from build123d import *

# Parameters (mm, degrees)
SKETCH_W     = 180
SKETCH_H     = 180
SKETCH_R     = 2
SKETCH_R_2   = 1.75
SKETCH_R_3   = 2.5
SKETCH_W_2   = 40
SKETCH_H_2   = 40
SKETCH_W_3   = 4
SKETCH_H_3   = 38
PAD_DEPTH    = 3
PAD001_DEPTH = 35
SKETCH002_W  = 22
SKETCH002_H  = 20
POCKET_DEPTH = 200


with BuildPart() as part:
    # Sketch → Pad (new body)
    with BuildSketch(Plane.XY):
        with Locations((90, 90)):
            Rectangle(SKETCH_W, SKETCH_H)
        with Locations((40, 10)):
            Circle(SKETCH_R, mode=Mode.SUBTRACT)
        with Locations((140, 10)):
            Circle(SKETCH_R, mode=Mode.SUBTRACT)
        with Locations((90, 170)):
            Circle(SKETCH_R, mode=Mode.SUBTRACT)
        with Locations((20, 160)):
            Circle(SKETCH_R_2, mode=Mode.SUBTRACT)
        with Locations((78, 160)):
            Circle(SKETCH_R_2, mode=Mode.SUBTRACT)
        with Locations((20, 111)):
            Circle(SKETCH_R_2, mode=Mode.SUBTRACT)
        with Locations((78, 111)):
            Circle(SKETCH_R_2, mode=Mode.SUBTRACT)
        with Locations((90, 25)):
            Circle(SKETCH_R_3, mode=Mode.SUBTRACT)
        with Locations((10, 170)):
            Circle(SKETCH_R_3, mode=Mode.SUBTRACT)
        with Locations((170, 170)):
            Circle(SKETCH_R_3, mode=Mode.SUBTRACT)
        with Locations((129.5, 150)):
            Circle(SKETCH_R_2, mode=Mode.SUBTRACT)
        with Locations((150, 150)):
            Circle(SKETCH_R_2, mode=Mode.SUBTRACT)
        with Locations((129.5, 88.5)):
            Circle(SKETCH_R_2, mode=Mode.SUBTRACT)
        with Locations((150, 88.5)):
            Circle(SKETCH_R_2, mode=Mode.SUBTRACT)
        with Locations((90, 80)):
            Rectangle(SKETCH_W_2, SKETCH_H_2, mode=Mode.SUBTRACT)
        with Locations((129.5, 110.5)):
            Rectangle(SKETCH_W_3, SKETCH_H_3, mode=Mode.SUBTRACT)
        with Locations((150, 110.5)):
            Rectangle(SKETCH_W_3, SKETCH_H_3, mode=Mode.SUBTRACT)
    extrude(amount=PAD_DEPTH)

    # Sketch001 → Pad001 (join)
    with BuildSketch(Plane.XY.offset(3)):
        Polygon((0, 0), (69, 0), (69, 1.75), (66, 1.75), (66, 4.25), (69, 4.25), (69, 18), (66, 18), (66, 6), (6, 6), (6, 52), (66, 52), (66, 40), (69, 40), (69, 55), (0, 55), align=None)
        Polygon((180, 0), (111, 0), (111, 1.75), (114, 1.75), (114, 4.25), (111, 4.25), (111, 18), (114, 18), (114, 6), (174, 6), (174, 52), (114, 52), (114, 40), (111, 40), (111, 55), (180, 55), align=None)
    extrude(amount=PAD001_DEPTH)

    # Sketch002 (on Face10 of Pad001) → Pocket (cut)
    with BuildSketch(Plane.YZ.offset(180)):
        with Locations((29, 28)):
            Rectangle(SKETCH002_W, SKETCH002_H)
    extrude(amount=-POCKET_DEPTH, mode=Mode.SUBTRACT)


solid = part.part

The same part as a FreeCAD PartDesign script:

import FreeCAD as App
import Part
import Sketcher

V = App.Vector

doc = App.newDocument("Part")
body = doc.addObject("PartDesign::Body", "Body")

# Sketch on XY plane
sketch1 = doc.addObject("Sketcher::SketchObject", "Sketch")
body.addObject(sketch1)
sketch1.AttachmentSupport = (doc.XY_Plane, [""])
sketch1.MapMode = "FlatFace"
sketch1.addGeometry(Part.LineSegment(V(0, 180, 0), V(0, 0, 0)), False)
sketch1.addGeometry(Part.LineSegment(V(0, 0, 0), V(180, 0, 0)), False)
sketch1.addGeometry(Part.LineSegment(V(180, 0, 0), V(180, 180, 0)), False)
sketch1.addGeometry(Part.LineSegment(V(180, 180, 0), V(0, 180, 0)), False)
sketch1.addGeometry(Part.Circle(V(40, 10, 0), V(0, 0, 1), 2), False)
sketch1.addGeometry(Part.Circle(V(90, 25, 0), V(0, 0, 1), 2.5), False)
sketch1.addGeometry(Part.Circle(V(140, 10, 0), V(0, 0, 1), 2), False)
sketch1.addGeometry(Part.LineSegment(V(110, 60, 0), V(70, 60, 0)), False)
sketch1.addGeometry(Part.LineSegment(V(70, 60, 0), V(70, 100, 0)), False)
sketch1.addGeometry(Part.LineSegment(V(70, 100, 0), V(110, 100, 0)), False)
sketch1.addGeometry(Part.LineSegment(V(110, 100, 0), V(110, 60, 0)), False)
sketch1.addGeometry(Part.Circle(V(129.5, 88.5, 0), V(0, 0, 1), 1.8), False)
sketch1.addGeometry(Part.Circle(V(150, 88.5, 0), V(0, 0, 1), 1.8), False)
sketch1.addGeometry(Part.Circle(V(20, 111, 0), V(0, 0, 1), 1.8), False)
sketch1.addGeometry(Part.Circle(V(78, 111, 0), V(0, 0, 1), 1.8), False)
sketch1.addGeometry(Part.Circle(V(20, 160, 0), V(0, 0, 1), 1.8), False)
sketch1.addGeometry(Part.Circle(V(10, 170, 0), V(0, 0, 1), 2.5), False)
sketch1.addGeometry(Part.Circle(V(78, 160, 0), V(0, 0, 1), 1.8), False)
sketch1.addGeometry(Part.LineSegment(V(131.5, 91.5, 0), V(127.5, 91.5, 0)), False)
sketch1.addGeometry(Part.LineSegment(V(127.5, 91.5, 0), V(127.5, 129.5, 0)), False)
sketch1.addGeometry(Part.LineSegment(V(127.5, 129.5, 0), V(131.5, 129.5, 0)), False)
sketch1.addGeometry(Part.LineSegment(V(131.5, 129.5, 0), V(131.5, 91.5, 0)), False)
sketch1.addGeometry(Part.LineSegment(V(152, 91.5, 0), V(148, 91.5, 0)), False)
sketch1.addGeometry(Part.LineSegment(V(148, 91.5, 0), V(148, 129.5, 0)), False)
sketch1.addGeometry(Part.LineSegment(V(148, 129.5, 0), V(152, 129.5, 0)), False)
sketch1.addGeometry(Part.LineSegment(V(152, 129.5, 0), V(152, 91.5, 0)), False)
sketch1.addGeometry(Part.Circle(V(129.5, 150, 0), V(0, 0, 1), 1.8), False)
sketch1.addGeometry(Part.Circle(V(90, 170, 0), V(0, 0, 1), 2), False)
sketch1.addGeometry(Part.Circle(V(150, 150, 0), V(0, 0, 1), 1.8), False)
sketch1.addGeometry(Part.Circle(V(170, 170, 0), V(0, 0, 1), 2.5), False)
sketch1.addConstraint(Sketcher.Constraint("Coincident", 0, 2, 1, 1))
sketch1.addConstraint(Sketcher.Constraint("Coincident", 1, 2, 2, 1))
sketch1.addConstraint(Sketcher.Constraint("Coincident", 2, 2, 3, 1))
sketch1.addConstraint(Sketcher.Constraint("Coincident", 3, 2, 0, 1))
sketch1.addConstraint(Sketcher.Constraint("Coincident", 7, 2, 8, 1))
sketch1.addConstraint(Sketcher.Constraint("Coincident", 8, 2, 9, 1))
sketch1.addConstraint(Sketcher.Constraint("Coincident", 9, 2, 10, 1))
sketch1.addConstraint(Sketcher.Constraint("Coincident", 10, 2, 7, 1))
sketch1.addConstraint(Sketcher.Constraint("Coincident", 18, 2, 19, 1))
sketch1.addConstraint(Sketcher.Constraint("Coincident", 19, 2, 20, 1))
sketch1.addConstraint(Sketcher.Constraint("Coincident", 20, 2, 21, 1))
sketch1.addConstraint(Sketcher.Constraint("Coincident", 21, 2, 18, 1))
sketch1.addConstraint(Sketcher.Constraint("Coincident", 22, 2, 23, 1))
sketch1.addConstraint(Sketcher.Constraint("Coincident", 23, 2, 24, 1))
sketch1.addConstraint(Sketcher.Constraint("Coincident", 24, 2, 25, 1))
sketch1.addConstraint(Sketcher.Constraint("Coincident", 25, 2, 22, 1))
sketch1.addConstraint(Sketcher.Constraint("Vertical", 0))
sketch1.addConstraint(Sketcher.Constraint("Horizontal", 1))
sketch1.addConstraint(Sketcher.Constraint("Vertical", 2))
sketch1.addConstraint(Sketcher.Constraint("Horizontal", 3))
sketch1.addConstraint(Sketcher.Constraint("Horizontal", 7))
sketch1.addConstraint(Sketcher.Constraint("Vertical", 8))
sketch1.addConstraint(Sketcher.Constraint("Horizontal", 9))
sketch1.addConstraint(Sketcher.Constraint("Vertical", 10))
sketch1.addConstraint(Sketcher.Constraint("Horizontal", 18))
sketch1.addConstraint(Sketcher.Constraint("Vertical", 19))
sketch1.addConstraint(Sketcher.Constraint("Horizontal", 20))
sketch1.addConstraint(Sketcher.Constraint("Vertical", 21))
sketch1.addConstraint(Sketcher.Constraint("Horizontal", 22))
sketch1.addConstraint(Sketcher.Constraint("Vertical", 23))
sketch1.addConstraint(Sketcher.Constraint("Horizontal", 24))
sketch1.addConstraint(Sketcher.Constraint("Vertical", 25))
sketch1.addConstraint(Sketcher.Constraint("Coincident", 0, 2, -1, 1))
sketch1.addConstraint(Sketcher.Constraint("Equal", 4, 6))
sketch1.addConstraint(Sketcher.Constraint("Equal", 11, 12))
sketch1.addConstraint(Sketcher.Constraint("Equal", 12, 13))
sketch1.addConstraint(Sketcher.Constraint("Equal", 13, 14))
sketch1.addConstraint(Sketcher.Constraint("Equal", 14, 15))
sketch1.addConstraint(Sketcher.Constraint("Equal", 5, 16))
sketch1.addConstraint(Sketcher.Constraint("Equal", 15, 17))
sketch1.addConstraint(Sketcher.Constraint("Equal", 17, 26))
sketch1.addConstraint(Sketcher.Constraint("Equal", 6, 27))
sketch1.addConstraint(Sketcher.Constraint("Equal", 26, 28))
sketch1.addConstraint(Sketcher.Constraint("Equal", 16, 29))
sketch1.addConstraint(Sketcher.Constraint("Horizontal", 4, 3, 6, 3))
sketch1.addConstraint(Sketcher.Constraint("Horizontal", 11, 3, 12, 3))
sketch1.addConstraint(Sketcher.Constraint("Horizontal", 13, 3, 14, 3))
sketch1.addConstraint(Sketcher.Constraint("Horizontal", 15, 3, 17, 3))
sketch1.addConstraint(Sketcher.Constraint("Horizontal", 16, 3, 27, 3))
sketch1.addConstraint(Sketcher.Constraint("Horizontal", 26, 3, 28, 3))
sketch1.addConstraint(Sketcher.Constraint("Horizontal", 27, 3, 29, 3))
sketch1.addConstraint(Sketcher.Constraint("Horizontal", 21, 2, 22, 2))
sketch1.addConstraint(Sketcher.Constraint("Horizontal", 20, 2, 23, 2))
sketch1.addConstraint(Sketcher.Constraint("Vertical", 13, 3, 15, 3))
sketch1.addConstraint(Sketcher.Constraint("Vertical", 14, 3, 17, 3))
sketch1.addConstraint(Sketcher.Constraint("Vertical", 11, 3, 26, 3))
sketch1.addConstraint(Sketcher.Constraint("Vertical", 5, 3, 27, 3))
sketch1.addConstraint(Sketcher.Constraint("Vertical", 12, 3, 28, 3))
sketch1.addConstraint(Sketcher.Constraint("Equal", 20, 22))
sketch1.addConstraint(Sketcher.Constraint("Equal", 3, 0))
sketch1.addConstraint(Sketcher.Constraint("Equal", 9, 8))
sketch1.addConstraint(Sketcher.Constraint("Diameter", 4, 4.0))
sketch1.addConstraint(Sketcher.Constraint("Diameter", 5, 5.0))
sketch1.addConstraint(Sketcher.Constraint("Diameter", 11, 3.5))
sketch1.addConstraint(Sketcher.Constraint("DistanceX", 1, 1, 1, 2, 180.0))
sketch1.addConstraint(Sketcher.Constraint("DistanceX", 7, 2, 7, 1, 40.0))
sketch1.addConstraint(Sketcher.Constraint("DistanceX", 18, 2, 18, 1, 4.0))
sketch1.addConstraint(Sketcher.Constraint("DistanceY", 19, 1, 19, 2, 38.0))
sketch1.addConstraint(Sketcher.Constraint("DistanceX", -1, 1, 4, 3, 40.0))
sketch1.addConstraint(Sketcher.Constraint("DistanceY", -1, 1, 4, 3, 10.0))
sketch1.addConstraint(Sketcher.Constraint("DistanceX", -1, 1, 5, 3, 90.0))
sketch1.addConstraint(Sketcher.Constraint("DistanceY", -1, 1, 5, 3, 25.0))
sketch1.addConstraint(Sketcher.Constraint("DistanceX", -1, 1, 6, 3, 140.0))
sketch1.addConstraint(Sketcher.Constraint("DistanceX", -1, 1, 12, 3, 150.0))
sketch1.addConstraint(Sketcher.Constraint("DistanceX", -1, 1, 13, 3, 20.0))
sketch1.addConstraint(Sketcher.Constraint("DistanceY", -1, 1, 13, 3, 111.0))
sketch1.addConstraint(Sketcher.Constraint("DistanceX", -1, 1, 14, 3, 78.0))
sketch1.addConstraint(Sketcher.Constraint("DistanceY", -1, 1, 15, 3, 160.0))
sketch1.addConstraint(Sketcher.Constraint("DistanceX", -1, 1, 16, 3, 10.0))
sketch1.addConstraint(Sketcher.Constraint("DistanceY", -1, 1, 16, 3, 170.0))
sketch1.addConstraint(Sketcher.Constraint("DistanceY", -1, 1, 26, 3, 150.0))
sketch1.addConstraint(Sketcher.Constraint("DistanceX", -1, 1, 29, 3, 170.0))
sketch1.addConstraint(Sketcher.Constraint("DistanceX", -1, 1, 7, 2, 70.0))
sketch1.addConstraint(Sketcher.Constraint("DistanceY", -1, 1, 7, 2, 60.0))
sketch1.addConstraint(Sketcher.Constraint("DistanceX", -1, 1, 22, 2, 148.0))
sketch1.addConstraint(Sketcher.Constraint("DistanceX", 18, 2, 11, 3, 2.0))
sketch1.addConstraint(Sketcher.Constraint("DistanceY", 11, 3, 18, 2, 3.0))
sketch1.addConstraint(Sketcher.Constraint("DistanceX", -1, 1, 11, 3, 129.5))
sketch1.addConstraint(Sketcher.Constraint("DistanceY", -1, 1, 11, 3, 88.5))
pad1 = doc.addObject("PartDesign::Pad", "Pad")
body.addObject(pad1)
pad1.Profile = sketch1
pad1.Length = 3

# Sketch on XY plane
sketch2 = doc.addObject("Sketcher::SketchObject", "Sketch001")
body.addObject(sketch2)
sketch2.AttachmentSupport = (doc.XY_Plane, [""])
sketch2.MapMode = "FlatFace"
sketch2.AttachmentOffset = App.Placement(V(0, 0, 3), App.Rotation())
sketch2.addGeometry(Part.LineSegment(V(0, 0, 0), V(69, 0, 0)), False)
sketch2.addGeometry(Part.LineSegment(V(69, 0, 0), V(69, 1.8, 0)), False)
sketch2.addGeometry(Part.LineSegment(V(69, 1.8, 0), V(66, 1.8, 0)), False)
sketch2.addGeometry(Part.LineSegment(V(66, 1.8, 0), V(66, 4.2, 0)), False)
sketch2.addGeometry(Part.LineSegment(V(66, 4.2, 0), V(69, 4.2, 0)), False)
sketch2.addGeometry(Part.LineSegment(V(69, 4.2, 0), V(69, 18, 0)), False)
sketch2.addGeometry(Part.LineSegment(V(69, 18, 0), V(66, 18, 0)), False)
sketch2.addGeometry(Part.LineSegment(V(66, 18, 0), V(66, 6, 0)), False)
sketch2.addGeometry(Part.LineSegment(V(66, 6, 0), V(6, 6, 0)), False)
sketch2.addGeometry(Part.LineSegment(V(6, 6, 0), V(6, 52, 0)), False)
sketch2.addGeometry(Part.LineSegment(V(6, 52, 0), V(66, 52, 0)), False)
sketch2.addGeometry(Part.LineSegment(V(66, 52, 0), V(66, 40, 0)), False)
sketch2.addGeometry(Part.LineSegment(V(66, 40, 0), V(69, 40, 0)), False)
sketch2.addGeometry(Part.LineSegment(V(69, 40, 0), V(69, 55, 0)), False)
sketch2.addGeometry(Part.LineSegment(V(69, 55, 0), V(0, 55, 0)), False)
sketch2.addGeometry(Part.LineSegment(V(0, 55, 0), V(0, 0, 0)), False)
sketch2.addGeometry(Part.LineSegment(V(111, 0, 0), V(180, 0, 0)), False)
sketch2.addGeometry(Part.LineSegment(V(180, 0, 0), V(180, 55, 0)), False)
sketch2.addGeometry(Part.LineSegment(V(180, 55, 0), V(111, 55, 0)), False)
sketch2.addGeometry(Part.LineSegment(V(111, 55, 0), V(111, 40, 0)), False)
sketch2.addGeometry(Part.LineSegment(V(111, 40, 0), V(114, 40, 0)), False)
sketch2.addGeometry(Part.LineSegment(V(114, 40, 0), V(114, 52, 0)), False)
sketch2.addGeometry(Part.LineSegment(V(114, 52, 0), V(174, 52, 0)), False)
sketch2.addGeometry(Part.LineSegment(V(174, 52, 0), V(174, 6, 0)), False)
sketch2.addGeometry(Part.LineSegment(V(174, 6, 0), V(114, 6, 0)), False)
sketch2.addGeometry(Part.LineSegment(V(114, 6, 0), V(114, 18, 0)), False)
sketch2.addGeometry(Part.LineSegment(V(114, 18, 0), V(111, 18, 0)), False)
sketch2.addGeometry(Part.LineSegment(V(111, 18, 0), V(111, 4.2, 0)), False)
sketch2.addGeometry(Part.LineSegment(V(111, 4.2, 0), V(114, 4.2, 0)), False)
sketch2.addGeometry(Part.LineSegment(V(114, 4.2, 0), V(114, 1.8, 0)), False)
sketch2.addGeometry(Part.LineSegment(V(114, 1.8, 0), V(111, 1.8, 0)), False)
sketch2.addGeometry(Part.LineSegment(V(111, 1.8, 0), V(111, 0, 0)), False)
sketch2.addConstraint(Sketcher.Constraint("Coincident", 0, 2, 1, 1))
sketch2.addConstraint(Sketcher.Constraint("Coincident", 1, 2, 2, 1))
sketch2.addConstraint(Sketcher.Constraint("Coincident", 2, 2, 3, 1))
sketch2.addConstraint(Sketcher.Constraint("Coincident", 3, 2, 4, 1))
sketch2.addConstraint(Sketcher.Constraint("Coincident", 4, 2, 5, 1))
sketch2.addConstraint(Sketcher.Constraint("Coincident", 5, 2, 6, 1))
sketch2.addConstraint(Sketcher.Constraint("Coincident", 6, 2, 7, 1))
sketch2.addConstraint(Sketcher.Constraint("Coincident", 7, 2, 8, 1))
sketch2.addConstraint(Sketcher.Constraint("Coincident", 8, 2, 9, 1))
sketch2.addConstraint(Sketcher.Constraint("Coincident", 9, 2, 10, 1))
sketch2.addConstraint(Sketcher.Constraint("Coincident", 10, 2, 11, 1))
sketch2.addConstraint(Sketcher.Constraint("Coincident", 11, 2, 12, 1))
sketch2.addConstraint(Sketcher.Constraint("Coincident", 12, 2, 13, 1))
sketch2.addConstraint(Sketcher.Constraint("Coincident", 13, 2, 14, 1))
sketch2.addConstraint(Sketcher.Constraint("Coincident", 14, 2, 15, 1))
sketch2.addConstraint(Sketcher.Constraint("Coincident", 15, 2, 0, 1))
sketch2.addConstraint(Sketcher.Constraint("Coincident", 16, 2, 17, 1))
sketch2.addConstraint(Sketcher.Constraint("Coincident", 17, 2, 18, 1))
sketch2.addConstraint(Sketcher.Constraint("Coincident", 18, 2, 19, 1))
sketch2.addConstraint(Sketcher.Constraint("Coincident", 19, 2, 20, 1))
sketch2.addConstraint(Sketcher.Constraint("Coincident", 20, 2, 21, 1))
sketch2.addConstraint(Sketcher.Constraint("Coincident", 21, 2, 22, 1))
sketch2.addConstraint(Sketcher.Constraint("Coincident", 22, 2, 23, 1))
sketch2.addConstraint(Sketcher.Constraint("Coincident", 23, 2, 24, 1))
sketch2.addConstraint(Sketcher.Constraint("Coincident", 24, 2, 25, 1))
sketch2.addConstraint(Sketcher.Constraint("Coincident", 25, 2, 26, 1))
sketch2.addConstraint(Sketcher.Constraint("Coincident", 26, 2, 27, 1))
sketch2.addConstraint(Sketcher.Constraint("Coincident", 27, 2, 28, 1))
sketch2.addConstraint(Sketcher.Constraint("Coincident", 28, 2, 29, 1))
sketch2.addConstraint(Sketcher.Constraint("Coincident", 29, 2, 30, 1))
sketch2.addConstraint(Sketcher.Constraint("Coincident", 30, 2, 31, 1))
sketch2.addConstraint(Sketcher.Constraint("Coincident", 31, 2, 16, 1))
sketch2.addConstraint(Sketcher.Constraint("Horizontal", 0))
sketch2.addConstraint(Sketcher.Constraint("Vertical", 1))
sketch2.addConstraint(Sketcher.Constraint("Horizontal", 2))
sketch2.addConstraint(Sketcher.Constraint("Vertical", 3))
sketch2.addConstraint(Sketcher.Constraint("Horizontal", 4))
sketch2.addConstraint(Sketcher.Constraint("Vertical", 5))
sketch2.addConstraint(Sketcher.Constraint("Horizontal", 6))
sketch2.addConstraint(Sketcher.Constraint("Vertical", 7))
sketch2.addConstraint(Sketcher.Constraint("Horizontal", 8))
sketch2.addConstraint(Sketcher.Constraint("Vertical", 9))
sketch2.addConstraint(Sketcher.Constraint("Horizontal", 10))
sketch2.addConstraint(Sketcher.Constraint("Vertical", 11))
sketch2.addConstraint(Sketcher.Constraint("Horizontal", 12))
sketch2.addConstraint(Sketcher.Constraint("Vertical", 13))
sketch2.addConstraint(Sketcher.Constraint("Horizontal", 14))
sketch2.addConstraint(Sketcher.Constraint("Vertical", 15))
sketch2.addConstraint(Sketcher.Constraint("Horizontal", 16))
sketch2.addConstraint(Sketcher.Constraint("Vertical", 17))
sketch2.addConstraint(Sketcher.Constraint("Horizontal", 18))
sketch2.addConstraint(Sketcher.Constraint("Vertical", 19))
sketch2.addConstraint(Sketcher.Constraint("Horizontal", 20))
sketch2.addConstraint(Sketcher.Constraint("Vertical", 21))
sketch2.addConstraint(Sketcher.Constraint("Horizontal", 22))
sketch2.addConstraint(Sketcher.Constraint("Vertical", 23))
sketch2.addConstraint(Sketcher.Constraint("Horizontal", 24))
sketch2.addConstraint(Sketcher.Constraint("Vertical", 25))
sketch2.addConstraint(Sketcher.Constraint("Horizontal", 26))
sketch2.addConstraint(Sketcher.Constraint("Vertical", 27))
sketch2.addConstraint(Sketcher.Constraint("Horizontal", 28))
sketch2.addConstraint(Sketcher.Constraint("Vertical", 29))
sketch2.addConstraint(Sketcher.Constraint("Horizontal", 30))
sketch2.addConstraint(Sketcher.Constraint("Vertical", 31))
sketch2.addConstraint(Sketcher.Constraint("Coincident", 15, 2, -1, 1))
sketch2.addConstraint(Sketcher.Constraint("PointOnObject", 16, 2, -1))
sketch2.addConstraint(Sketcher.Constraint("Horizontal", 14, 2, 17, 2))
sketch2.addConstraint(Sketcher.Constraint("Horizontal", 12, 2, 19, 2))
sketch2.addConstraint(Sketcher.Constraint("Horizontal", 10, 2, 21, 2))
sketch2.addConstraint(Sketcher.Constraint("Horizontal", 8, 2, 23, 2))
sketch2.addConstraint(Sketcher.Constraint("Horizontal", 6, 2, 25, 2))
sketch2.addConstraint(Sketcher.Constraint("Horizontal", 4, 2, 27, 2))
sketch2.addConstraint(Sketcher.Constraint("Horizontal", 2, 2, 29, 2))
sketch2.addConstraint(Sketcher.Constraint("Vertical", 1, 2, 4, 2))
sketch2.addConstraint(Sketcher.Constraint("Vertical", 3, 2, 6, 2))
sketch2.addConstraint(Sketcher.Constraint("Vertical", 7, 2, 10, 2))
sketch2.addConstraint(Sketcher.Constraint("Vertical", 5, 2, 12, 2))
sketch2.addConstraint(Sketcher.Constraint("Vertical", 21, 2, 24, 2))
sketch2.addConstraint(Sketcher.Constraint("Vertical", 19, 2, 26, 2))
sketch2.addConstraint(Sketcher.Constraint("Vertical", 25, 2, 28, 2))
sketch2.addConstraint(Sketcher.Constraint("Vertical", 27, 2, 30, 2))
sketch2.addConstraint(Sketcher.Constraint("Equal", 14, 16))
sketch2.addConstraint(Sketcher.Constraint("Equal", 12, 20))
sketch2.addConstraint(Sketcher.Constraint("Equal", 10, 22))
sketch2.addConstraint(Sketcher.Constraint("Equal", 7, 11))
sketch2.addConstraint(Sketcher.Constraint("DistanceX", 0, 1, 0, 2, 69.0))
sketch2.addConstraint(Sketcher.Constraint("DistanceX", 2, 2, 2, 1, 3.0))
sketch2.addConstraint(Sketcher.Constraint("DistanceX", 8, 2, 8, 1, 60.0))
sketch2.addConstraint(Sketcher.Constraint("DistanceY", 7, 2, 7, 1, 12.0))
sketch2.addConstraint(Sketcher.Constraint("DistanceY", 9, 1, 9, 2, 46.0))
sketch2.addConstraint(Sketcher.Constraint("DistanceY", 13, 1, 13, 2, 15.0))
sketch2.addConstraint(Sketcher.Constraint("DistanceY", 15, 2, 15, 1, 55.0))
sketch2.addConstraint(Sketcher.Constraint("DistanceY", 3, 1, 3, 2, 2.5))
sketch2.addConstraint(Sketcher.Constraint("DistanceX", -1, 1, 16, 2, 180.0))
sketch2.addConstraint(Sketcher.Constraint("DistanceY", 1, 1, 1, 2, 1.75))
pad2 = doc.addObject("PartDesign::Pad", "Pad001")
body.addObject(pad2)
pad2.Profile = sketch2
pad2.Length = 35

# Sketch on YZ plane
sketch3 = doc.addObject("Sketcher::SketchObject", "Sketch002")
body.addObject(sketch3)
sketch3.AttachmentSupport = (doc.YZ_Plane, [""])
sketch3.MapMode = "FlatFace"
sketch3.AttachmentOffset = App.Placement(V(0, 0, 180), App.Rotation())
sketch3.addGeometry(Part.LineSegment(V(18, 38, 0), V(18, 18, 0)), False)
sketch3.addGeometry(Part.LineSegment(V(18, 18, 0), V(40, 18, 0)), False)
sketch3.addGeometry(Part.LineSegment(V(40, 18, 0), V(40, 38, 0)), False)
sketch3.addGeometry(Part.LineSegment(V(40, 38, 0), V(18, 38, 0)), False)
sketch3.addConstraint(Sketcher.Constraint("Coincident", 0, 2, 1, 1))
sketch3.addConstraint(Sketcher.Constraint("Coincident", 1, 2, 2, 1))
sketch3.addConstraint(Sketcher.Constraint("Coincident", 2, 2, 3, 1))
sketch3.addConstraint(Sketcher.Constraint("Coincident", 3, 2, 0, 1))
sketch3.addConstraint(Sketcher.Constraint("Vertical", 0))
sketch3.addConstraint(Sketcher.Constraint("Horizontal", 1))
sketch3.addConstraint(Sketcher.Constraint("Vertical", 2))
sketch3.addConstraint(Sketcher.Constraint("Horizontal", 3))
sketch3.addConstraint(Sketcher.Constraint("DistanceX", 1, 1, 1, 2, 22.0))
sketch3.addConstraint(Sketcher.Constraint("DistanceY", 0, 2, 0, 1, 20.0))
sketch3.addConstraint(Sketcher.Constraint("DistanceX", -1, 1, 0, 2, 18.0))
sketch3.addConstraint(Sketcher.Constraint("DistanceY", -1, 1, 0, 2, 18.0))
pocket1 = doc.addObject("PartDesign::Pocket", "Pocket")
body.addObject(pocket1)
pocket1.Profile = sketch3
pocket1.Length = 200

doc.recompute()
